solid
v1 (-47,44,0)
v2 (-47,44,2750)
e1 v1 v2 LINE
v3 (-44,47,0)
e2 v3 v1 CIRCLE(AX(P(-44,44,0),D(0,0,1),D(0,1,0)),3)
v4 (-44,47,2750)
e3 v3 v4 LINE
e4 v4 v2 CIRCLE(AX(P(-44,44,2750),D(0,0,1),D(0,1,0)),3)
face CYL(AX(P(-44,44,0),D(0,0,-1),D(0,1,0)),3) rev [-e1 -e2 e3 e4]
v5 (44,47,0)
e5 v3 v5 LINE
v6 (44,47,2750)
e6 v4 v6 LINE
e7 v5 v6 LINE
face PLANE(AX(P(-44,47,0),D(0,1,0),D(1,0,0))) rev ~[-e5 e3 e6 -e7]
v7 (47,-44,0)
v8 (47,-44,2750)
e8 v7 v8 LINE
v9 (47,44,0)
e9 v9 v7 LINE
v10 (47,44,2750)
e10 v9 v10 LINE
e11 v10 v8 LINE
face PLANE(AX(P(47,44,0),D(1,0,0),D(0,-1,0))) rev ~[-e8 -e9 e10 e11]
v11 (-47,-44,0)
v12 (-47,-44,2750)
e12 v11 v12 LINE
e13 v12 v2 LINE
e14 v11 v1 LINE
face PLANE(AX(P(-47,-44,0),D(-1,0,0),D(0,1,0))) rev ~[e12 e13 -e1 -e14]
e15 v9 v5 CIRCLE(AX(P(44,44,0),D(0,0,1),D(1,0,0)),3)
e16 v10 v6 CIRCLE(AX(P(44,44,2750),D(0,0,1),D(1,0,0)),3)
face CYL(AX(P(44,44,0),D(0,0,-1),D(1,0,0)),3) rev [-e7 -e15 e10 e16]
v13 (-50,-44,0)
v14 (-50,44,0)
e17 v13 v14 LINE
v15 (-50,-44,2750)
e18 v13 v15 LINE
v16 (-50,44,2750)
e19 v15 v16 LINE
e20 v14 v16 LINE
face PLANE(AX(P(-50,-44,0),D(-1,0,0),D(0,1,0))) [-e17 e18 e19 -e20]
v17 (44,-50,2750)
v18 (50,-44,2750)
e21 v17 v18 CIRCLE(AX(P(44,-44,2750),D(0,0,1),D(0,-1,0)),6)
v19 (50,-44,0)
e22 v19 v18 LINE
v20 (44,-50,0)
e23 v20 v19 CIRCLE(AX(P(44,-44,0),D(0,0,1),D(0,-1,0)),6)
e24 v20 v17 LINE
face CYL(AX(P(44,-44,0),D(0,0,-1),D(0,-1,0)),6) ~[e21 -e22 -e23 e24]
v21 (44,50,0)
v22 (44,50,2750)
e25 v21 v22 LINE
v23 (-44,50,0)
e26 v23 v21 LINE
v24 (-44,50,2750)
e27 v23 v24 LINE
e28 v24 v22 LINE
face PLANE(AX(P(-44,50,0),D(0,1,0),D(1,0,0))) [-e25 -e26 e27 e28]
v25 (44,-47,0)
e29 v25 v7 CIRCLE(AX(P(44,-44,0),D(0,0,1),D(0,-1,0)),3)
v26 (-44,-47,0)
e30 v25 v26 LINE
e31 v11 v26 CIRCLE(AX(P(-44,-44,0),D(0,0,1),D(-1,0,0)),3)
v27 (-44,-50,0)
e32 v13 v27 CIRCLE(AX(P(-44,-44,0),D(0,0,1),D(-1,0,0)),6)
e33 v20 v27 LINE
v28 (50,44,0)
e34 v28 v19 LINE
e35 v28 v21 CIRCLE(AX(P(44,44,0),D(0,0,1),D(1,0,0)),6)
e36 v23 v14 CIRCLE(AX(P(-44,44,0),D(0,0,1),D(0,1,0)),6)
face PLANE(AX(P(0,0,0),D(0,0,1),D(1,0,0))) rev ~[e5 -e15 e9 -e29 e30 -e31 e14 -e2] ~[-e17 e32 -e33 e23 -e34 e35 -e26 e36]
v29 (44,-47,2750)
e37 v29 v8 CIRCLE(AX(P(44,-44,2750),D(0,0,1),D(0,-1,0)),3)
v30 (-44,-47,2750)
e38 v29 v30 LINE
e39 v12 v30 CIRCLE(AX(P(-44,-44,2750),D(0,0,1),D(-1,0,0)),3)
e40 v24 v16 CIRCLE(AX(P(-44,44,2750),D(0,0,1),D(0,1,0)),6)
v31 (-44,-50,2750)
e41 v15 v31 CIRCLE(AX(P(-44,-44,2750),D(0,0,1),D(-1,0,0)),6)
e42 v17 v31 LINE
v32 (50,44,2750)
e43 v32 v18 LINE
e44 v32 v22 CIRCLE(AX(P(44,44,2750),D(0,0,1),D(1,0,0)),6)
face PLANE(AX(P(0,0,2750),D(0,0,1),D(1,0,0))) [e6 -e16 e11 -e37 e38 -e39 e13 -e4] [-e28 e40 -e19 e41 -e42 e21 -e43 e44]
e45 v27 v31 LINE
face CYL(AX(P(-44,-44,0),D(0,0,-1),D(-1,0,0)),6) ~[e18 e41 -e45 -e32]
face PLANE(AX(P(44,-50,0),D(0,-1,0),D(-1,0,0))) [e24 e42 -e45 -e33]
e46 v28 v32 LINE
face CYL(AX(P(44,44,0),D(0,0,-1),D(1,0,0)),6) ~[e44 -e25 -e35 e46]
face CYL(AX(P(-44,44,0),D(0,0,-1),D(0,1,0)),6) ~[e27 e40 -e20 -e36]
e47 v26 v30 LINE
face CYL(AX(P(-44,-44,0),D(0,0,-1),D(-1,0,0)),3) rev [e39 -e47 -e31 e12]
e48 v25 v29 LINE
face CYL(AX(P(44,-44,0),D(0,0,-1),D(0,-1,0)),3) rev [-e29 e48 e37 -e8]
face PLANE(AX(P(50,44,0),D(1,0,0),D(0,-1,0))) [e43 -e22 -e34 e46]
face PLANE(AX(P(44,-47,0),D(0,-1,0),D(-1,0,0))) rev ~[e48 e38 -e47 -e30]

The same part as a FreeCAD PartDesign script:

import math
import FreeCAD as App
import Part
import Sketcher

doc = App.newDocument("Part")
body = doc.addObject("PartDesign::Body", "Body")

# Sketch on XY plane
sketch1 = body.newObject("Sketcher::SketchObject", "Sketch")
sketch1.AttachmentSupport = (doc.getObject("XY_Plane"), [""])
sketch1.MapMode = "FlatFace"
sketch1.addGeometry([
    Part.LineSegment(App.Vector(-50, 44, 0), App.Vector(-50, -44, 0)),  # 0
    Part.ArcOfCircle(Part.Circle(App.Vector(-44, -44, 0), App.Vector(0, 0, 1), 6), math.radians(180), math.radians(270)),  # 1
    Part.LineSegment(App.Vector(-44, -50, 0), App.Vector(44, -50, 0)),  # 2
    Part.ArcOfCircle(Part.Circle(App.Vector(44, -44, 0), App.Vector(0, 0, 1), 6), math.radians(-90), math.radians(0)),  # 3
    Part.LineSegment(App.Vector(50, -44, 0), App.Vector(50, 44, 0)),  # 4
    Part.ArcOfCircle(Part.Circle(App.Vector(44, 44, 0), App.Vector(0, 0, 1), 6), math.radians(0), math.radians(90)),  # 5
    Part.LineSegment(App.Vector(44, 50, 0), App.Vector(-44, 50, 0)),  # 6
    Part.ArcOfCircle(Part.Circle(App.Vector(-44, 44, 0), App.Vector(0, 0, 1), 6), math.radians(90), math.radians(180)),  # 7
    Part.ArcOfCircle(Part.Circle(App.Vector(-44, 44, 0), App.Vector(0, 0, 1), 3), math.radians(90), math.radians(180)),  # 8
    Part.LineSegment(App.Vector(-44, 47, 0), App.Vector(44, 47, 0)),  # 9
    Part.ArcOfCircle(Part.Circle(App.Vector(44, 44, 0), App.Vector(0, 0, 1), 3), math.radians(0), math.radians(90)),  # 10
    Part.LineSegment(App.Vector(47, 44, 0), App.Vector(47, -44, 0)),  # 11
    Part.ArcOfCircle(Part.Circle(App.Vector(44, -44, 0), App.Vector(0, 0, 1), 3), math.radians(-90), math.radians(0)),  # 12
    Part.LineSegment(App.Vector(44, -47, 0), App.Vector(-44, -47, 0)),  # 13
    Part.ArcOfCircle(Part.Circle(App.Vector(-44, -44, 0), App.Vector(0, 0, 1), 3), math.radians(180), math.radians(270)),  # 14
    Part.LineSegment(App.Vector(-47, -44, 0), App.Vector(-47, 44, 0)),  # 15
], False)
sketch1.addConstraint([
    Sketcher.Constraint("Tangent", 0, 2, 1, 1),
    Sketcher.Constraint("Tangent", 1, 2, 2, 1),
    Sketcher.Constraint("Tangent", 2, 2, 3, 1),
    Sketcher.Constraint("Tangent", 3, 2, 4, 1),
    Sketcher.Constraint("Tangent", 4, 2, 5, 1),
    Sketcher.Constraint("Tangent", 5, 2, 6, 1),
    Sketcher.Constraint("Tangent", 6, 2, 7, 1),
    Sketcher.Constraint("Tangent", 7, 2, 0, 1),
    Sketcher.Constraint("Tangent", 8, 1, 9, 1),
    Sketcher.Constraint("Tangent", 9, 2, 10, 2),
    Sketcher.Constraint("Tangent", 10, 1, 11, 1),
    Sketcher.Constraint("Tangent", 11, 2, 12, 2),
    Sketcher.Constraint("Tangent", 12, 1, 13, 1),
    Sketcher.Constraint("Tangent", 13, 2, 14, 2),
    Sketcher.Constraint("Tangent", 14, 1, 15, 1),
    Sketcher.Constraint("Tangent", 15, 2, 8, 2),
    Sketcher.Constraint("Vertical", 0),
    Sketcher.Constraint("Horizontal", 2),
    Sketcher.Constraint("Vertical", 4),
    Sketcher.Constraint("Horizontal", 6),
    Sketcher.Constraint("Horizontal", 9),
    Sketcher.Constraint("Vertical", 11),
    Sketcher.Constraint("Horizontal", 13),
    Sketcher.Constraint("Vertical", 15),
    Sketcher.Constraint("Coincident", 8, 3, 7, 3),
    Sketcher.Constraint("Coincident", 10, 3, 5, 3),
    Sketcher.Constraint("Coincident", 12, 3, 3, 3),
    Sketcher.Constraint("Equal", 1, 3),
    Sketcher.Constraint("Equal", 3, 5),
    Sketcher.Constraint("Equal", 5, 7),
    Sketcher.Constraint("Equal", 12, 14),
    Sketcher.Constraint("Symmetric", 1, 3, 5, 3, -1, 1),
    Sketcher.Constraint("Equal", 13, 0),
    Sketcher.Constraint("Radius", 1, 6.0),
    Sketcher.Constraint("Radius", 8, 3.0),
    Sketcher.Constraint("DistanceX", 0, 2, -1, 1, 50.0),
])
pad1 = body.newObject("PartDesign::Pad", "Pad")
pad1.Profile = sketch1
pad1.Length = 2750

doc.recompute()
